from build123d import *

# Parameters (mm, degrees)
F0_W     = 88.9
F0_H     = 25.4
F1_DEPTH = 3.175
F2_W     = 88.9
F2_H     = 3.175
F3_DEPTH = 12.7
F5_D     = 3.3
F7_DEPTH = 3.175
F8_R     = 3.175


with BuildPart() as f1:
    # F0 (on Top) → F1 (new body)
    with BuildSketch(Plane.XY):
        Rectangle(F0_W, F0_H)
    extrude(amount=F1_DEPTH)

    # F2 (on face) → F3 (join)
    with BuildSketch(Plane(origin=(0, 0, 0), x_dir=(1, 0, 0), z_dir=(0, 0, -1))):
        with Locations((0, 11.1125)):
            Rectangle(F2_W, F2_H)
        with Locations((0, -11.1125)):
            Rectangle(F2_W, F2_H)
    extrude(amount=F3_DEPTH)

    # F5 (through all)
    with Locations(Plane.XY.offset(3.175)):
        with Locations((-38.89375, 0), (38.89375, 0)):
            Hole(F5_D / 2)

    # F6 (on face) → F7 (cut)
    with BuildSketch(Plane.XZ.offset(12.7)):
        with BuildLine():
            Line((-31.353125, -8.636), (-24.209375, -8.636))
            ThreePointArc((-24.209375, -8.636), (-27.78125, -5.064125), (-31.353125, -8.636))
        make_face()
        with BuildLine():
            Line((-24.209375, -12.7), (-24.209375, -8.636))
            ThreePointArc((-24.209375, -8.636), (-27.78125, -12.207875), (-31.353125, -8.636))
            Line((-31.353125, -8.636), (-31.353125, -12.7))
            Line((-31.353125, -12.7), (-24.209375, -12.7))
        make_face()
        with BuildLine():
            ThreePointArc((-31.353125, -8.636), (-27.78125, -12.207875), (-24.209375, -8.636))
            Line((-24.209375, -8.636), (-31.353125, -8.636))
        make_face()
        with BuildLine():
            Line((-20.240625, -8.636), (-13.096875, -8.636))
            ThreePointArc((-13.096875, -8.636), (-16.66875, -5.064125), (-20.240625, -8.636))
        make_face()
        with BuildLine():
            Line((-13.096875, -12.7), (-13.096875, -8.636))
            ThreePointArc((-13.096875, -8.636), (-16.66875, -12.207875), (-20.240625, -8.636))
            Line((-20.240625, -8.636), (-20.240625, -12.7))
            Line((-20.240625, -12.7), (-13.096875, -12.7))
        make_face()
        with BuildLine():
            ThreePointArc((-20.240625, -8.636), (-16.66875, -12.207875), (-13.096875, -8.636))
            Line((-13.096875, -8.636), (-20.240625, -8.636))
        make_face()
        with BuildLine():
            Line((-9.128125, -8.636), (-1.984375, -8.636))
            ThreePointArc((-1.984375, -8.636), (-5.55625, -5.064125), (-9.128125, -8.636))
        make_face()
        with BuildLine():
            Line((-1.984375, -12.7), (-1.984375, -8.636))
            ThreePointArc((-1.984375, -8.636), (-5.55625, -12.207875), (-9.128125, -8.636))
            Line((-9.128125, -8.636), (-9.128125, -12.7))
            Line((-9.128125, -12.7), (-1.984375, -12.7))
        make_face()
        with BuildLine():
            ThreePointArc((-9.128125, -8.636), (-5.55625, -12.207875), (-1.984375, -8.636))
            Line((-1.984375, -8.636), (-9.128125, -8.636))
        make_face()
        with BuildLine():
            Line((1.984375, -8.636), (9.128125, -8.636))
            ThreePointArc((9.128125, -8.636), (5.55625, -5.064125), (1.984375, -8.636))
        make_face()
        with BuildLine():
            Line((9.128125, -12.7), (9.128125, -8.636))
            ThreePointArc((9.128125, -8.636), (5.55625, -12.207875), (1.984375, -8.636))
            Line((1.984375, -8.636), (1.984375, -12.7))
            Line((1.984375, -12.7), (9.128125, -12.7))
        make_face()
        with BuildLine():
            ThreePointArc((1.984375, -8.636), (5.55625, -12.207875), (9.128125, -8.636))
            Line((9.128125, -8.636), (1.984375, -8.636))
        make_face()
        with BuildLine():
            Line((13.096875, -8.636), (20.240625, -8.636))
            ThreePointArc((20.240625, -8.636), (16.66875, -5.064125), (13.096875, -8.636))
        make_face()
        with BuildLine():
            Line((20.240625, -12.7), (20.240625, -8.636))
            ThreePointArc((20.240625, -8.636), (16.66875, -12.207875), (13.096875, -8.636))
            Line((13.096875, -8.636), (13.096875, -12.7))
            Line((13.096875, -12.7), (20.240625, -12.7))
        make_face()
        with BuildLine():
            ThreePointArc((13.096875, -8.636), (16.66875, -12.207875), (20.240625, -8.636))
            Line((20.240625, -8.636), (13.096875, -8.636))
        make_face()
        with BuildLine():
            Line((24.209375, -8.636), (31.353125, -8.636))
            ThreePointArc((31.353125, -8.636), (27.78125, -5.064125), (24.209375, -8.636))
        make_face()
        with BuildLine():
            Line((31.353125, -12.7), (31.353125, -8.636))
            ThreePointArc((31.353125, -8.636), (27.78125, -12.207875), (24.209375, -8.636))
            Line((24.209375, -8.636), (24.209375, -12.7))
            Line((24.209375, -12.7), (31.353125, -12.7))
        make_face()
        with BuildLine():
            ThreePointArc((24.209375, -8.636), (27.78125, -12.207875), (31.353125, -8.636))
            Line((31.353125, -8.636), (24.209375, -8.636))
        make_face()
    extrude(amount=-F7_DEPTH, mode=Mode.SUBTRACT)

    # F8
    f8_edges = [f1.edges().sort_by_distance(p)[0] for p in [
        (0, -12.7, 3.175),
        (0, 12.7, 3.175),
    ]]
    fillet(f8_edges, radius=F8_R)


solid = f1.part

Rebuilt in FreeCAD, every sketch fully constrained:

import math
import FreeCAD as App
import Part
import Sketcher

V = App.Vector
Q = App.Units.Quantity


def edges_at(feature, points):
    """Names of the edges that pass closest to the given points."""
    edges = feature.Shape.Edges
    near = lambda p: min(range(len(edges)), key=lambda i: edges[i].distToShape(Part.Vertex(*p))[0])
    return sorted({f"Edge{near(p) + 1}" for p in points})


def add_polygon(sketch, points):
    """Adds a closed chain of lines whose ends are joined by coincident constraints."""
    first, n = sketch.GeometryCount, len(points)
    for a, b in zip(points, points[1:] + points[:1]):
        sketch.addGeometry(Part.LineSegment(App.Vector(*a, 0), App.Vector(*b, 0)), False)
    for i in range(n):
        sketch.addConstraint(Sketcher.Constraint("Coincident", first + i, 2, first + (i + 1) % n, 1))

doc = App.newDocument("Part")
body = doc.addObject("PartDesign::Body", "Body")

sketch1 = body.newObject("Sketcher::SketchObject", "Sketch")
sketch1.AttachmentSupport = (doc.getObject("XY_Plane"), [""])
sketch1.MapMode = "FlatFace"
add_polygon(sketch1, [(-44, 13), (-44, -13), (44, -13), (44, 13)])
sketch1.addConstraint([
    Sketcher.Constraint("Vertical", 0),
    Sketcher.Constraint("Horizontal", 1),
    Sketcher.Constraint("Vertical", 2),
    Sketcher.Constraint("Horizontal", 3),
    Sketcher.Constraint("Symmetric", 0, 2, 2, 2, -1, 1),
    Sketcher.Constraint("DistanceY", 0, 2, 0, 1, Q("1 in")),
    Sketcher.Constraint("DistanceX", 1, 1, 1, 2, Q("3.5 in")),
])
pad1 = body.newObject("PartDesign::Pad", "Pad")
pad1.Profile = sketch1
pad1.Length = Q("0.125 in")

sketch2 = body.newObject("Sketcher::SketchObject", "Sketch001")
sketch2.AttachmentSupport = (doc.getObject("XY_Plane"), [""])
sketch2.MapMode = "FlatFace"
add_polygon(sketch2, [(-44.5, -12.7), (-44.5, -9.5), (44.5, -9.5), (44.5, -12.7)])
add_polygon(sketch2, [(-44.5, 9.5), (-44.5, 12.7), (44.5, 12.7), (44.5, 9.5)])
sketch2.addConstraint([
    Sketcher.Constraint("Vertical", 0),
    Sketcher.Constraint("Horizontal", 1),
    Sketcher.Constraint("Vertical", 2),
    Sketcher.Constraint("Horizontal", 3),
    Sketcher.Constraint("Vertical", 4),
    Sketcher.Constraint("Horizontal", 5),
    Sketcher.Constraint("Vertical", 6),
    Sketcher.Constraint("Horizontal", 7),
    Sketcher.Constraint("Symmetric", 2, 2, 4, 2, -1, 1),
    Sketcher.Constraint("Symmetric", 0, 2, 6, 2, -1, 1),
    Sketcher.Constraint("Vertical", 3, 2, 4, 2),
    Sketcher.Constraint("DistanceX", 1, 1, 1, 2, Q("3.5 in")),
    Sketcher.Constraint("DistanceY", 3, 2, 4, 2, Q("1 in")),
    Sketcher.Constraint("DistanceY", 0, 1, 0, 2, Q("0.125 in")),
])
pad2 = body.newObject("PartDesign::Pad", "Pad001")
pad2.Profile = sketch2
pad2.Length = Q("0.5 in")
pad2.Reversed = True

sketch3 = body.newObject("Sketcher::SketchObject", "Sketch002")
sketch3.AttachmentSupport = (doc.getObject("XY_Plane"), [""])
sketch3.MapMode = "FlatFace"
sketch3.AttachmentOffset = App.Placement(V(0, 0, 0.125 * 25.4), App.Rotation())
sketch3.addGeometry([
    Part.Circle(V(-38.9, 0, 0), V(0, 0, 1), 1.6),
    Part.Circle(V(38.9, 0, 0), V(0, 0, 1), 1.6),
], False)
sketch3.addConstraint([
    Sketcher.Constraint("Equal", 0, 1),
    Sketcher.Constraint("Symmetric", 0, 3, 1, 3, -1, 1),
    Sketcher.Constraint("PointOnObject", 0, 3, -1),
    Sketcher.Constraint("Diameter", 0, 3.3),
    Sketcher.Constraint("DistanceX", 0, 3, -1, 1, Q("1.53125 in")),
])
doc.recompute()
hole = body.newObject("PartDesign::Hole", "Hole")
hole.Profile = sketch3
hole.ThreadType = "None"
hole.Diameter = 3.3
hole.DepthType = "ThroughAll"

sketch4 = body.newObject("Sketcher::SketchObject", "Sketch003")
sketch4.AttachmentSupport = (doc.getObject("XZ_Plane"), [""])
sketch4.MapMode = "FlatFace"
sketch4.AttachmentOffset = App.Placement(V(0, 0, 0.5 * 25.4), App.Rotation())
sketch4.addGeometry([
    Part.ArcOfCircle(Part.Circle(V(-27.8, -8.6, 0), V(0, 0, 1), 3.6), math.radians(0), math.radians(180)),
    Part.LineSegment(V(-31.4, -8.6, 0), V(-31.4, -12.7, 0)),
    Part.LineSegment(V(-31.4, -12.7, 0), V(-24.2, -12.7, 0)),
    Part.LineSegment(V(-24.2, -12.7, 0), V(-24.2, -8.6, 0)),
    Part.ArcOfCircle(Part.Circle(V(-16.7, -8.6, 0), V(0, 0, 1), 3.6), math.radians(0), math.radians(180)),
    Part.LineSegment(V(-20.2, -8.6, 0), V(-20.2, -12.7, 0)),
    Part.LineSegment(V(-20.2, -12.7, 0), V(-13.1, -12.7, 0)),
    Part.LineSegment(V(-13.1, -12.7, 0), V(-13.1, -8.6, 0)),
    Part.ArcOfCircle(Part.Circle(V(-5.6, -8.6, 0), V(0, 0, 1), 3.6), math.radians(0), math.radians(180)),
    Part.LineSegment(V(-9.1, -8.6, 0), V(-9.1, -12.7, 0)),
    Part.LineSegment(V(-9.1, -12.7, 0), V(-2, -12.7, 0)),
    Part.LineSegment(V(-2, -12.7, 0), V(-2, -8.6, 0)),
    Part.ArcOfCircle(Part.Circle(V(5.6, -8.6, 0), V(0, 0, 1), 3.6), math.radians(0), math.radians(180)),
    Part.LineSegment(V(2, -8.6, 0), V(2, -12.7, 0)),
    Part.LineSegment(V(2, -12.7, 0), V(9.1, -12.7, 0)),
    Part.LineSegment(V(9.1, -12.7, 0), V(9.1, -8.6, 0)),
    Part.ArcOfCircle(Part.Circle(V(16.7, -8.6, 0), V(0, 0, 1), 3.6), math.radians(0), math.radians(180)),
    Part.LineSegment(V(13.1, -8.6, 0), V(13.1, -12.7, 0)),
    Part.LineSegment(V(13.1, -12.7, 0), V(20.2, -12.7, 0)),
    Part.LineSegment(V(20.2, -12.7, 0), V(20.2, -8.6, 0)),
    Part.ArcOfCircle(Part.Circle(V(27.8, -8.6, 0), V(0, 0, 1), 3.6), math.radians(0), math.radians(180)),
    Part.LineSegment(V(24.2, -8.6, 0), V(24.2, -12.7, 0)),
    Part.LineSegment(V(24.2, -12.7, 0), V(31.4, -12.7, 0)),
    Part.LineSegment(V(31.4, -12.7, 0), V(31.4, -8.6, 0)),
], False)
sketch4.addConstraint([
    Sketcher.Constraint("Tangent", 0, 2, 1, 1),
    Sketcher.Constraint("Coincident", 1, 2, 2, 1),
    Sketcher.Constraint("Coincident", 2, 2, 3, 1),
    Sketcher.Constraint("Tangent", 3, 2, 0, 1),
    Sketcher.Constraint("Tangent", 4, 2, 5, 1),
    Sketcher.Constraint("Coincident", 5, 2, 6, 1),
    Sketcher.Constraint("Coincident", 6, 2, 7, 1),
    Sketcher.Constraint("Tangent", 7, 2, 4, 1),
    Sketcher.Constraint("Tangent", 8, 2, 9, 1),
    Sketcher.Constraint("Coincident", 9, 2, 10, 1),
    Sketcher.Constraint("Coincident", 10, 2, 11, 1),
    Sketcher.Constraint("Tangent", 11, 2, 8, 1),
    Sketcher.Constraint("Tangent", 12, 2, 13, 1),
    Sketcher.Constraint("Coincident", 13, 2, 14, 1),
    Sketcher.Constraint("Coincident", 14, 2, 15, 1),
    Sketcher.Constraint("Tangent", 15, 2, 12, 1),
    Sketcher.Constraint("Tangent", 16, 2, 17, 1),
    Sketcher.Constraint("Coincident", 17, 2, 18, 1),
    Sketcher.Constraint("Coincident", 18, 2, 19, 1),
    Sketcher.Constraint("Tangent", 19, 2, 16, 1),
    Sketcher.Constraint("Tangent", 20, 2, 21, 1),
    Sketcher.Constraint("Coincident", 21, 2, 22, 1),
    Sketcher.Constraint("Coincident", 22, 2, 23, 1),
    Sketcher.Constraint("Tangent", 23, 2, 20, 1),
    Sketcher.Constraint("Vertical", 1),
    Sketcher.Constraint("Horizontal", 2),
    Sketcher.Constraint("Vertical", 3),
    Sketcher.Constraint("Vertical", 5),
    Sketcher.Constraint("Horizontal", 6),
    Sketcher.Constraint("Vertical", 7),
    Sketcher.Constraint("Vertical", 9),
    Sketcher.Constraint("Horizontal", 10),
    Sketcher.Constraint("Vertical", 11),
    Sketcher.Constraint("Vertical", 13),
    Sketcher.Constraint("Horizontal", 14),
    Sketcher.Constraint("Vertical", 15),
    Sketcher.Constraint("Vertical", 17),
    Sketcher.Constraint("Horizontal", 18),
    Sketcher.Constraint("Vertical", 19),
    Sketcher.Constraint("Vertical", 21),
    Sketcher.Constraint("Horizontal", 22),
    Sketcher.Constraint("Vertical", 23),
    Sketcher.Constraint("Equal", 0, 4),
    Sketcher.Constraint("Equal", 4, 8),
    Sketcher.Constraint("Equal", 8, 12),
    Sketcher.Constraint("Equal", 12, 16),
    Sketcher.Constraint("Equal", 16, 20),
    Sketcher.Constraint("Symmetric", 8, 3, 12, 3, -2),
    Sketcher.Constraint("Symmetric", 4, 3, 16, 3, -2),
    Sketcher.Constraint("Symmetric", 0, 3, 20, 3, -2),
    Sketcher.Constraint("Horizontal", 0, 3, 4, 3),
    Sketcher.Constraint("Horizontal", 4, 3, 8, 3),
    Sketcher.Constraint("Horizontal", 2, 2, 5, 2),
    Sketcher.Constraint("Horizontal", 6, 2, 9, 2),
    Sketcher.Constraint("Horizontal", 10, 2, 13, 2),
    Sketcher.Constraint("Horizontal", 14, 2, 17, 2),
    Sketcher.Constraint("Horizontal", 18, 2, 21, 2),
    Sketcher.Constraint("Radius", 0, Q("0.140625 in")),
    Sketcher.Constraint("DistanceY", 1, 2, 1, 1, Q("0.16 in")),
    Sketcher.Constraint("DistanceY", 1, 2, -1, 1, Q("0.5 in")),
    Sketcher.Constraint("DistanceX", 0, 3, 16, 3, Q("1.75 in")),
    Sketcher.Constraint("DistanceX", 0, 3, -1, 1, Q("1.09375 in")),
    Sketcher.Constraint("DistanceX", 8, 3, -1, 1, Q("0.21875 in")),
])
pocket1 = body.newObject("PartDesign::Pocket", "Pocket")
pocket1.Profile = sketch4
pocket1.Length = Q("0.125 in")
doc.recompute()

fillet = body.newObject("PartDesign::Fillet", "Fillet")
fillet.Base = (pocket1, edges_at(pocket1, [(0, -12.7, 3.175), (0, 12.7, 3.175)]))
fillet.Radius = Q("0.125 in")

doc.recompute()
